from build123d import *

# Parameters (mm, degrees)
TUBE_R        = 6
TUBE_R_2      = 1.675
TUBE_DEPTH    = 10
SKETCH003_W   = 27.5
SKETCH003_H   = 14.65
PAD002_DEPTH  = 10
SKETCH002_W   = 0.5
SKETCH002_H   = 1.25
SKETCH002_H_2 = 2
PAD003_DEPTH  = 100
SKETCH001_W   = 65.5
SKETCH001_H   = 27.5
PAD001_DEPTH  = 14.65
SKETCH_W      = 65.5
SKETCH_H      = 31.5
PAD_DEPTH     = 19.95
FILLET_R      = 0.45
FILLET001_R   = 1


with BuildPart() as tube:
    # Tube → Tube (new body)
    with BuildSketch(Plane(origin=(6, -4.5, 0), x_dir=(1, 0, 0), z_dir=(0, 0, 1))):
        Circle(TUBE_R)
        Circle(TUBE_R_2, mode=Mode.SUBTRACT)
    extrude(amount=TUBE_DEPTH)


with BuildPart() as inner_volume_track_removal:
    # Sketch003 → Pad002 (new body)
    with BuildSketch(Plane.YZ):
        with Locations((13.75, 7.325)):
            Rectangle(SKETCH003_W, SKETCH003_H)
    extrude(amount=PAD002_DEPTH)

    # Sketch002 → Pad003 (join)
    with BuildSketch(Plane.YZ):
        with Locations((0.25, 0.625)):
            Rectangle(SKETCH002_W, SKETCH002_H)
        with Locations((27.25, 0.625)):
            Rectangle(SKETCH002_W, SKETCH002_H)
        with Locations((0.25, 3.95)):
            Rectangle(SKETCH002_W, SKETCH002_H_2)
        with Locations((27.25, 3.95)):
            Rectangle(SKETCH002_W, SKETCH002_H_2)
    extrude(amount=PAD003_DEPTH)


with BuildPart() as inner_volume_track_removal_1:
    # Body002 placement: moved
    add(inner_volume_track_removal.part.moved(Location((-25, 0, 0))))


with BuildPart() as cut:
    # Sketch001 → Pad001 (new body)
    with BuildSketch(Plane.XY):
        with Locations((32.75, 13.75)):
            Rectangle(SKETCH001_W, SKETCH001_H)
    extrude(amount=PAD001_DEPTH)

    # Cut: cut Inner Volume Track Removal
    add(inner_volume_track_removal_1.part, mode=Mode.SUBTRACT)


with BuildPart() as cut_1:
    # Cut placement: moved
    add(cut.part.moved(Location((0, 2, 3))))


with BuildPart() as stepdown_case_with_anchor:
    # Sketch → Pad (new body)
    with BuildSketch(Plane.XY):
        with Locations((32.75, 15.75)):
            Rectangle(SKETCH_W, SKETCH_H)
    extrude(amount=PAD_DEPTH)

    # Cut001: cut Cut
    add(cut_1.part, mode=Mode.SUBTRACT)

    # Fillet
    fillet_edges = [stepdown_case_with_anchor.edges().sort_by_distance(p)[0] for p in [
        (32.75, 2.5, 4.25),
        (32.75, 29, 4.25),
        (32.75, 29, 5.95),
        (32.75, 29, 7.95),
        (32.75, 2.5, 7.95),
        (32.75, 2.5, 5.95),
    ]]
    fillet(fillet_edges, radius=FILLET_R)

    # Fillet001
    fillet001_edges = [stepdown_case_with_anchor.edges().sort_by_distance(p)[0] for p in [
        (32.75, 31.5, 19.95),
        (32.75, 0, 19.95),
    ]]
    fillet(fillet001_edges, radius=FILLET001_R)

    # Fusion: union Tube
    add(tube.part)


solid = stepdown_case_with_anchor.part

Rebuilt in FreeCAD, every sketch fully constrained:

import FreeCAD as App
import Part
import Sketcher

V = App.Vector


def edges_at(feature, points):
    """Names of the edges that pass closest to the given points."""
    edges = feature.Shape.Edges
    near = lambda p: min(range(len(edges)), key=lambda i: edges[i].distToShape(Part.Vertex(*p))[0])
    return sorted({f"Edge{near(p) + 1}" for p in points})

doc = App.newDocument("Part")
body = doc.addObject("PartDesign::Body", "Body")

sketch1 = body.newObject("Sketcher::SketchObject", "Sketch")
sketch1.AttachmentSupport = (doc.getObject("XY_Plane"), [""])
sketch1.MapMode = "FlatFace"
sketch1.addGeometry([
    Part.Circle(V(6, -4.5, 0), V(0, 0, 1), 6),
    Part.Circle(V(6, -4.5, 0), V(0, 0, 1), 1.7),
], False)
sketch1.addConstraint([
    Sketcher.Constraint("Coincident", 1, 3, 0, 3),
    Sketcher.Constraint("Diameter", 0, 12.0),
    Sketcher.Constraint("Diameter", 1, 3.35),
    Sketcher.Constraint("DistanceX", -1, 1, 0, 3, 6.0),
    Sketcher.Constraint("DistanceY", 0, 3, -1, 1, 4.5),
])
pad1 = body.newObject("PartDesign::Pad", "Pad")
pad1.Profile = sketch1
pad1.Length = 10
body2 = doc.addObject("PartDesign::Body", "Body001")

sketch2 = body2.newObject("Sketcher::SketchObject", "Sketch001")
sketch2.AttachmentSupport = (doc.getObject("YZ_Plane001"), [""])
sketch2.MapMode = "FlatFace"
sketch2.addGeometry([
    Part.LineSegment(V(0, 15, 0), V(0, 0, 0)),
    Part.LineSegment(V(0, 0, 0), V(28, 0, 0)),
    Part.LineSegment(V(28, 0, 0), V(28, 15, 0)),
    Part.LineSegment(V(28, 15, 0), V(0, 15, 0)),
], False)
sketch2.addConstraint([
    Sketcher.Constraint("Coincident", 0, 2, 1, 1),
    Sketcher.Constraint("Coincident", 1, 2, 2, 1),
    Sketcher.Constraint("Coincident", 2, 2, 3, 1),
    Sketcher.Constraint("Coincident", 3, 2, 0, 1),
    Sketcher.Constraint("Vertical", 0),
    Sketcher.Constraint("Horizontal", 1),
    Sketcher.Constraint("Vertical", 2),
    Sketcher.Constraint("Horizontal", 3),
    Sketcher.Constraint("Coincident", 0, 2, -1, 1),
    Sketcher.Constraint("DistanceX", 1, 1, 1, 2, 27.5),
    Sketcher.Constraint("DistanceY", 0, 2, 0, 1, 14.65),
])
pad2 = body2.newObject("PartDesign::Pad", "Pad001")
pad2.Profile = sketch2
pad2.Length = 10

sketch3 = body2.newObject("Sketcher::SketchObject", "Sketch002")
sketch3.AttachmentSupport = (doc.getObject("YZ_Plane001"), [""])
sketch3.MapMode = "FlatFace"
sketch3.addGeometry([
    Part.LineSegment(V(0, 1.2, 0), V(0, 0, 0)),
    Part.LineSegment(V(0, 0, 0), V(0.5, 0, 0)),
    Part.LineSegment(V(0.5, 0, 0), V(0.5, 1.2, 0)),
    Part.LineSegment(V(0.5, 1.2, 0), V(0, 1.2, 0)),
    Part.LineSegment(V(27, 1.2, 0), V(27, 0, 0)),
    Part.LineSegment(V(27, 0, 0), V(27.5, 0, 0)),
    Part.LineSegment(V(27.5, 0, 0), V(27.5, 1.2, 0)),
    Part.LineSegment(V(27.5, 1.2, 0), V(27, 1.2, 0)),
    Part.LineSegment(V(0, 5, 0), V(0, 3, 0)),
    Part.LineSegment(V(0, 3, 0), V(0.5, 3, 0)),
    Part.LineSegment(V(0.5, 3, 0), V(0.5, 5, 0)),
    Part.LineSegment(V(0.5, 5, 0), V(0, 5, 0)),
    Part.LineSegment(V(27, 5, 0), V(27, 3, 0)),
    Part.LineSegment(V(27, 3, 0), V(27.5, 3, 0)),
    Part.LineSegment(V(27.5, 3, 0), V(27.5, 5, 0)),
    Part.LineSegment(V(27.5, 5, 0), V(27, 5, 0)),
], False)
sketch3.addConstraint([
    Sketcher.Constraint("Coincident", 0, 2, 1, 1),
    Sketcher.Constraint("Coincident", 1, 2, 2, 1),
    Sketcher.Constraint("Coincident", 2, 2, 3, 1),
    Sketcher.Constraint("Coincident", 3, 2, 0, 1),
    Sketcher.Constraint("Coincident", 4, 2, 5, 1),
    Sketcher.Constraint("Coincident", 5, 2, 6, 1),
    Sketcher.Constraint("Coincident", 6, 2, 7, 1),
    Sketcher.Constraint("Coincident", 7, 2, 4, 1),
    Sketcher.Constraint("Coincident", 8, 2, 9, 1),
    Sketcher.Constraint("Coincident", 9, 2, 10, 1),
    Sketcher.Constraint("Coincident", 10, 2, 11, 1),
    Sketcher.Constraint("Coincident", 11, 2, 8, 1),
    Sketcher.Constraint("Coincident", 12, 2, 13, 1),
    Sketcher.Constraint("Coincident", 13, 2, 14, 1),
    Sketcher.Constraint("Coincident", 14, 2, 15, 1),
    Sketcher.Constraint("Coincident", 15, 2, 12, 1),
    Sketcher.Constraint("Vertical", 0),
    Sketcher.Constraint("Horizontal", 1),
    Sketcher.Constraint("Vertical", 2),
    Sketcher.Constraint("Horizontal", 3),
    Sketcher.Constraint("Vertical", 4),
    Sketcher.Constraint("Horizontal", 5),
    Sketcher.Constraint("Vertical", 6),
    Sketcher.Constraint("Horizontal", 7),
    Sketcher.Constraint("Vertical", 8),
    Sketcher.Constraint("Horizontal", 9),
    Sketcher.Constraint("Vertical", 10),
    Sketcher.Constraint("Horizontal", 11),
    Sketcher.Constraint("Vertical", 12),
    Sketcher.Constraint("Horizontal", 13),
    Sketcher.Constraint("Vertical", 14),
    Sketcher.Constraint("Horizontal", 15),
    Sketcher.Constraint("Coincident", 0, 2, -1, 1),
    Sketcher.Constraint("PointOnObject", 4, 2, -1),
    Sketcher.Constraint("PointOnObject", 8, 2, -2),
    Sketcher.Constraint("Horizontal", 3, 2, 6, 2),
    Sketcher.Constraint("Horizontal", 9, 2, 12, 2),
    Sketcher.Constraint("Horizontal", 11, 2, 14, 2),
    Sketcher.Constraint("Vertical", 2, 2, 9, 2),
    Sketcher.Constraint("Vertical", 7, 2, 12, 2),
    Sketcher.Constraint("Vertical", 6, 2, 13, 2),
    Sketcher.Constraint("Equal", 3, 5),
    Sketcher.Constraint("DistanceY", 8, 2, 8, 1, 2.0),
    Sketcher.Constraint("DistanceX", 1, 1, 1, 2, 0.5),
    Sketcher.Constraint("DistanceX", -1, 1, 4, 2, 27.0),
    Sketcher.Constraint("DistanceY", 0, 2, 0, 1, 1.25),
    Sketcher.Constraint("DistanceY", 3, 2, 8, 2, 1.7),
])
pad3 = body2.newObject("PartDesign::Pad", "Pad002")
pad3.Profile = sketch3
pad3.Length = 100
body3 = doc.addObject("PartDesign::Body", "Body002")
doc.recompute()

body2.Placement = App.Placement(V(-25, 0, 0), App.Rotation(V(0, 0, 1), 0))
boolean = body3.newObject("PartDesign::Boolean", "Boolean")
boolean.Type = "Fuse"
boolean.addObjects([body2])
body4 = doc.addObject("PartDesign::Body", "Body003")

sketch4 = body4.newObject("Sketcher::SketchObject", "Sketch003")
sketch4.AttachmentSupport = (doc.getObject("XY_Plane003"), [""])
sketch4.MapMode = "FlatFace"
sketch4.addGeometry([
    Part.LineSegment(V(0, 28, 0), V(0, 0, 0)),
    Part.LineSegment(V(0, 0, 0), V(66, 0, 0)),
    Part.LineSegment(V(66, 0, 0), V(66, 28, 0)),
    Part.LineSegment(V(66, 28, 0), V(0, 28, 0)),
], False)
sketch4.addConstraint([
    Sketcher.Constraint("Coincident", 0, 2, 1, 1),
    Sketcher.Constraint("Coincident", 1, 2, 2, 1),
    Sketcher.Constraint("Coincident", 2, 2, 3, 1),
    Sketcher.Constraint("Coincident", 3, 2, 0, 1),
    Sketcher.Constraint("Vertical", 0),
    Sketcher.Constraint("Horizontal", 1),
    Sketcher.Constraint("Vertical", 2),
    Sketcher.Constraint("Horizontal", 3),
    Sketcher.Constraint("Coincident", 0, 2, -1, 1),
    Sketcher.Constraint("DistanceX", 1, 1, 1, 2, 65.5),
    Sketcher.Constraint("DistanceY", 0, 2, 0, 1, 27.5),
])
pad4 = body4.newObject("PartDesign::Pad", "Pad003")
pad4.Profile = sketch4
pad4.Length = 14.65
doc.recompute()

boolean2 = body4.newObject("PartDesign::Boolean", "Boolean001")
boolean2.Type = "Cut"
boolean2.addObjects([body3])
body5 = doc.addObject("PartDesign::Body", "Body004")
doc.recompute()

body4.Placement = App.Placement(V(0, 2, 3), App.Rotation(V(0, 0, 1), 0))
boolean3 = body5.newObject("PartDesign::Boolean", "Boolean002")
boolean3.Type = "Fuse"
boolean3.addObjects([body4])
body6 = doc.addObject("PartDesign::Body", "Body005")

sketch5 = body6.newObject("Sketcher::SketchObject", "Sketch004")
sketch5.AttachmentSupport = (doc.getObject("XY_Plane005"), [""])
sketch5.MapMode = "FlatFace"
sketch5.addGeometry([
    Part.LineSegment(V(0, 32, 0), V(0, 0, 0)),
    Part.LineSegment(V(0, 0, 0), V(66, 0, 0)),
    Part.LineSegment(V(66, 0, 0), V(66, 32, 0)),
    Part.LineSegment(V(66, 32, 0), V(0, 32, 0)),
], False)
sketch5.addConstraint([
    Sketcher.Constraint("Coincident", 0, 2, 1, 1),
    Sketcher.Constraint("Coincident", 1, 2, 2, 1),
    Sketcher.Constraint("Coincident", 2, 2, 3, 1),
    Sketcher.Constraint("Coincident", 3, 2, 0, 1),
    Sketcher.Constraint("Vertical", 0),
    Sketcher.Constraint("Horizontal", 1),
    Sketcher.Constraint("Vertical", 2),
    Sketcher.Constraint("Horizontal", 3),
    Sketcher.Constraint("Coincident", 0, 2, -1, 1),
    Sketcher.Constraint("DistanceX", 1, 1, 1, 2, 65.5),
    Sketcher.Constraint("DistanceY", 0, 2, 0, 1, 31.5),
])
pad5 = body6.newObject("PartDesign::Pad", "Pad004")
pad5.Profile = sketch5
pad5.Length = 19.95
doc.recompute()

boolean4 = body6.newObject("PartDesign::Boolean", "Boolean003")
boolean4.Type = "Cut"
boolean4.addObjects([body5])
doc.recompute()

fillet = body6.newObject("PartDesign::Fillet", "Fillet")
fillet.Base = (boolean4, edges_at(boolean4, [
    (32.75, 2.5, 4.25),
    (32.75, 29, 4.25),
    (32.75, 29, 5.95),
    (32.75, 29, 7.95),
    (32.75, 2.5, 7.95),
    (32.75, 2.5, 5.95),
]))
fillet.Radius = 0.45
doc.recompute()

fillet2 = body6.newObject("PartDesign::Fillet", "Fillet001")
fillet2.Base = (fillet, edges_at(fillet, [(32.75, 31.5, 19.95), (32.75, 0, 19.95)]))
fillet2.Radius = 1
doc.recompute()

boolean5 = body6.newObject("PartDesign::Boolean", "Boolean004")
boolean5.Type = "Fuse"
boolean5.addObjects([body])

doc.recompute()
